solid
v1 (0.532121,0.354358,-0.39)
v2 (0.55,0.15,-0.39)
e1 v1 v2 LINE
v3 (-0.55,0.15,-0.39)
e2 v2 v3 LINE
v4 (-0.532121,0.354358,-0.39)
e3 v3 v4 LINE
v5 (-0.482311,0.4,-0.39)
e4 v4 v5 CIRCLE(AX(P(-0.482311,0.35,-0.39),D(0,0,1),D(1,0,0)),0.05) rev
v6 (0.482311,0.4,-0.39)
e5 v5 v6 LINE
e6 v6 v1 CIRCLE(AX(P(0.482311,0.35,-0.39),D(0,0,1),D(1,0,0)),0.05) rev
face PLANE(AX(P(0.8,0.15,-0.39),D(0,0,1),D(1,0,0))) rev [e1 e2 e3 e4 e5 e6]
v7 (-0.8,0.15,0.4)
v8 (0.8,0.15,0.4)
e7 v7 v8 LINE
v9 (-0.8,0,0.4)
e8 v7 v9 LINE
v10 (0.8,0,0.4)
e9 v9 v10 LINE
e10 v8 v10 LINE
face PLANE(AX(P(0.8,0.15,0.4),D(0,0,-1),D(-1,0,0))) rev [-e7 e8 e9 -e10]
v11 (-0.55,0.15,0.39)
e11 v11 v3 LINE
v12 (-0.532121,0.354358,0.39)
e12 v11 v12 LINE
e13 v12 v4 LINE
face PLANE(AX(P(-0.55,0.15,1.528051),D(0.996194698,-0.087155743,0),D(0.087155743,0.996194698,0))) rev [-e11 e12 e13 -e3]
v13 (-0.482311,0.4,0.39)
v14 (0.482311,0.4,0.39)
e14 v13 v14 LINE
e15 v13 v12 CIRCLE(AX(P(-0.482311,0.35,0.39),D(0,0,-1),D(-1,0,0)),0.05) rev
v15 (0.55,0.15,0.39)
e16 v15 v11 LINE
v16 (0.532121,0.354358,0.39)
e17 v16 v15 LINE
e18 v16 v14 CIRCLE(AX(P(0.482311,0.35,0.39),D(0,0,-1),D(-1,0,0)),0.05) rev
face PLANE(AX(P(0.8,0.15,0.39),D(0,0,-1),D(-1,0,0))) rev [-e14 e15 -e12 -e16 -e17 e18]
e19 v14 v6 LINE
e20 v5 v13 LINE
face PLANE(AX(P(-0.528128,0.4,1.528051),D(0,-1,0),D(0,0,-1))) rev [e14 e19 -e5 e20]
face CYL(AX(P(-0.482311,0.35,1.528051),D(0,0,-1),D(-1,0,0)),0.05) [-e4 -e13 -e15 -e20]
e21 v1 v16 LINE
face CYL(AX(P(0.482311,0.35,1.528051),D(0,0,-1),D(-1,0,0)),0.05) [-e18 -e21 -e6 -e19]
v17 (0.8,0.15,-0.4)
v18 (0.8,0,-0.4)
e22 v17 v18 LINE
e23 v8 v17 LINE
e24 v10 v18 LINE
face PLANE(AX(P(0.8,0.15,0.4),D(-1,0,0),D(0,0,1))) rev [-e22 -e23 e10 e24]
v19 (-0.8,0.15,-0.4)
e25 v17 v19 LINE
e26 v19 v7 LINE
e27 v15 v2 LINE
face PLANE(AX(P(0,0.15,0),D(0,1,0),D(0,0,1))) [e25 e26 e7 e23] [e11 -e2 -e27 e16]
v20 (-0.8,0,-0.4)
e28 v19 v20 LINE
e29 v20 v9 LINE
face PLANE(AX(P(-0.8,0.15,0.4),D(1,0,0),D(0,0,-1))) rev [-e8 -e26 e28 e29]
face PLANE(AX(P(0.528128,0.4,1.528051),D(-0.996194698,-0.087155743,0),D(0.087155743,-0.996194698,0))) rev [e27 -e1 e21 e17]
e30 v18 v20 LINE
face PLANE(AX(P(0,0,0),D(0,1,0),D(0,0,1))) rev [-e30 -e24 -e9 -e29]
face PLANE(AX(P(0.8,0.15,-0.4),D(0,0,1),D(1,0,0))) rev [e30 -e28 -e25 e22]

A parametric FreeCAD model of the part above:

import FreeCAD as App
import Part
import Sketcher

V = App.Vector
Q = App.Units.Quantity


def edges_at(feature, points):
    """Names of the edges that pass closest to the given points."""
    edges = feature.Shape.Edges
    near = lambda p: min(range(len(edges)), key=lambda i: edges[i].distToShape(Part.Vertex(*p))[0])
    return sorted({f"Edge{near(p) + 1}" for p in points})

doc = App.newDocument("Part")
body = doc.addObject("PartDesign::Body", "Body")

# Sketch on XZ plane
sketch1 = doc.addObject("Sketcher::SketchObject", "Sketch")
body.addObject(sketch1)
sketch1.AttachmentSupport = (doc.XZ_Plane, [""])
sketch1.MapMode = "FlatFace"
sketch1.addGeometry([
    Part.LineSegment(V(-0.8, -0.4, 0), V(-0.8, 0.4, 0)),
    Part.LineSegment(V(-0.8, 0.4, 0), V(0.8, 0.4, 0)),
    Part.LineSegment(V(0.8, 0.4, 0), V(0.8, -0.4, 0)),
    Part.LineSegment(V(0.8, -0.4, 0), V(-0.8, -0.4, 0)),
], False)
sketch1.addConstraint([
    Sketcher.Constraint("Coincident", 0, 2, 1, 1),
    Sketcher.Constraint("Coincident", 1, 2, 2, 1),
    Sketcher.Constraint("Coincident", 2, 2, 3, 1),
    Sketcher.Constraint("Coincident", 3, 2, 0, 1),
    Sketcher.Constraint("Vertical", 0),
    Sketcher.Constraint("Horizontal", 1),
    Sketcher.Constraint("Vertical", 2),
    Sketcher.Constraint("Horizontal", 3),
    Sketcher.Constraint("Symmetric", 0, 2, 2, 2, -1, 1),
    Sketcher.Constraint("DistanceX", 1, 1, 1, 2, Q("1.6 mm")),
    Sketcher.Constraint("DistanceY", 0, 1, 0, 2, Q("0.8 mm")),
])
pad1 = doc.addObject("PartDesign::Pad", "Pad")
body.addObject(pad1)
pad1.Profile = sketch1
pad1.Length = 0.15
pad1.Reversed = True

# Sketch on XY plane
sketch2 = doc.addObject("Sketcher::SketchObject", "Sketch001")
body.addObject(sketch2)
sketch2.AttachmentSupport = (doc.XY_Plane, [""])
sketch2.MapMode = "FlatFace"
sketch2.addGeometry([
    Part.LineSegment(V(-0.53, 0.4, 0), V(-0.55, 0.15, 0)),
    Part.LineSegment(V(-0.55, 0.15, 0), V(0.55, 0.15, 0)),
    Part.LineSegment(V(0.55, 0.15, 0), V(0.53, 0.4, 0)),
    Part.LineSegment(V(0.53, 0.4, 0), V(-0.53, 0.4, 0)),
], False)
sketch2.addConstraint([
    Sketcher.Constraint("Coincident", 0, 2, 1, 1),
    Sketcher.Constraint("Coincident", 1, 2, 2, 1),
    Sketcher.Constraint("Coincident", 2, 2, 3, 1),
    Sketcher.Constraint("Coincident", 3, 2, 0, 1),
    Sketcher.Constraint("Horizontal", 1),
    Sketcher.Constraint("Horizontal", 3),
    Sketcher.Constraint("Equal", 0, 2),
    Sketcher.Constraint("Angle", 0, Q("-95 deg")),
    Sketcher.Constraint("DistanceX", 1, 1, 1, 2, Q("1.1 mm")),
    Sketcher.Constraint("DistanceY", -1, 1, 2, 2, Q("0.4 mm")),
    Sketcher.Constraint("DistanceX", 0, 2, -1, 1, Q("0.55 mm")),
    Sketcher.Constraint("DistanceY", -1, 1, 0, 2, Q("0.15 mm")),
])
pad2 = doc.addObject("PartDesign::Pad", "Pad001")
body.addObject(pad2)
pad2.Profile = sketch2
pad2.Type = "TwoLengths"
pad2.Length = 0.39
pad2.Length2 = 0.39
doc.recompute()

fillet = doc.addObject("PartDesign::Fillet", "Fillet")
body.addObject(fillet)
fillet.Base = (pad2, edges_at(pad2, [(-0.528, 0.4, 0), (0.528, 0.4, 0)]))
fillet.Radius = 0.05

doc.recompute()
